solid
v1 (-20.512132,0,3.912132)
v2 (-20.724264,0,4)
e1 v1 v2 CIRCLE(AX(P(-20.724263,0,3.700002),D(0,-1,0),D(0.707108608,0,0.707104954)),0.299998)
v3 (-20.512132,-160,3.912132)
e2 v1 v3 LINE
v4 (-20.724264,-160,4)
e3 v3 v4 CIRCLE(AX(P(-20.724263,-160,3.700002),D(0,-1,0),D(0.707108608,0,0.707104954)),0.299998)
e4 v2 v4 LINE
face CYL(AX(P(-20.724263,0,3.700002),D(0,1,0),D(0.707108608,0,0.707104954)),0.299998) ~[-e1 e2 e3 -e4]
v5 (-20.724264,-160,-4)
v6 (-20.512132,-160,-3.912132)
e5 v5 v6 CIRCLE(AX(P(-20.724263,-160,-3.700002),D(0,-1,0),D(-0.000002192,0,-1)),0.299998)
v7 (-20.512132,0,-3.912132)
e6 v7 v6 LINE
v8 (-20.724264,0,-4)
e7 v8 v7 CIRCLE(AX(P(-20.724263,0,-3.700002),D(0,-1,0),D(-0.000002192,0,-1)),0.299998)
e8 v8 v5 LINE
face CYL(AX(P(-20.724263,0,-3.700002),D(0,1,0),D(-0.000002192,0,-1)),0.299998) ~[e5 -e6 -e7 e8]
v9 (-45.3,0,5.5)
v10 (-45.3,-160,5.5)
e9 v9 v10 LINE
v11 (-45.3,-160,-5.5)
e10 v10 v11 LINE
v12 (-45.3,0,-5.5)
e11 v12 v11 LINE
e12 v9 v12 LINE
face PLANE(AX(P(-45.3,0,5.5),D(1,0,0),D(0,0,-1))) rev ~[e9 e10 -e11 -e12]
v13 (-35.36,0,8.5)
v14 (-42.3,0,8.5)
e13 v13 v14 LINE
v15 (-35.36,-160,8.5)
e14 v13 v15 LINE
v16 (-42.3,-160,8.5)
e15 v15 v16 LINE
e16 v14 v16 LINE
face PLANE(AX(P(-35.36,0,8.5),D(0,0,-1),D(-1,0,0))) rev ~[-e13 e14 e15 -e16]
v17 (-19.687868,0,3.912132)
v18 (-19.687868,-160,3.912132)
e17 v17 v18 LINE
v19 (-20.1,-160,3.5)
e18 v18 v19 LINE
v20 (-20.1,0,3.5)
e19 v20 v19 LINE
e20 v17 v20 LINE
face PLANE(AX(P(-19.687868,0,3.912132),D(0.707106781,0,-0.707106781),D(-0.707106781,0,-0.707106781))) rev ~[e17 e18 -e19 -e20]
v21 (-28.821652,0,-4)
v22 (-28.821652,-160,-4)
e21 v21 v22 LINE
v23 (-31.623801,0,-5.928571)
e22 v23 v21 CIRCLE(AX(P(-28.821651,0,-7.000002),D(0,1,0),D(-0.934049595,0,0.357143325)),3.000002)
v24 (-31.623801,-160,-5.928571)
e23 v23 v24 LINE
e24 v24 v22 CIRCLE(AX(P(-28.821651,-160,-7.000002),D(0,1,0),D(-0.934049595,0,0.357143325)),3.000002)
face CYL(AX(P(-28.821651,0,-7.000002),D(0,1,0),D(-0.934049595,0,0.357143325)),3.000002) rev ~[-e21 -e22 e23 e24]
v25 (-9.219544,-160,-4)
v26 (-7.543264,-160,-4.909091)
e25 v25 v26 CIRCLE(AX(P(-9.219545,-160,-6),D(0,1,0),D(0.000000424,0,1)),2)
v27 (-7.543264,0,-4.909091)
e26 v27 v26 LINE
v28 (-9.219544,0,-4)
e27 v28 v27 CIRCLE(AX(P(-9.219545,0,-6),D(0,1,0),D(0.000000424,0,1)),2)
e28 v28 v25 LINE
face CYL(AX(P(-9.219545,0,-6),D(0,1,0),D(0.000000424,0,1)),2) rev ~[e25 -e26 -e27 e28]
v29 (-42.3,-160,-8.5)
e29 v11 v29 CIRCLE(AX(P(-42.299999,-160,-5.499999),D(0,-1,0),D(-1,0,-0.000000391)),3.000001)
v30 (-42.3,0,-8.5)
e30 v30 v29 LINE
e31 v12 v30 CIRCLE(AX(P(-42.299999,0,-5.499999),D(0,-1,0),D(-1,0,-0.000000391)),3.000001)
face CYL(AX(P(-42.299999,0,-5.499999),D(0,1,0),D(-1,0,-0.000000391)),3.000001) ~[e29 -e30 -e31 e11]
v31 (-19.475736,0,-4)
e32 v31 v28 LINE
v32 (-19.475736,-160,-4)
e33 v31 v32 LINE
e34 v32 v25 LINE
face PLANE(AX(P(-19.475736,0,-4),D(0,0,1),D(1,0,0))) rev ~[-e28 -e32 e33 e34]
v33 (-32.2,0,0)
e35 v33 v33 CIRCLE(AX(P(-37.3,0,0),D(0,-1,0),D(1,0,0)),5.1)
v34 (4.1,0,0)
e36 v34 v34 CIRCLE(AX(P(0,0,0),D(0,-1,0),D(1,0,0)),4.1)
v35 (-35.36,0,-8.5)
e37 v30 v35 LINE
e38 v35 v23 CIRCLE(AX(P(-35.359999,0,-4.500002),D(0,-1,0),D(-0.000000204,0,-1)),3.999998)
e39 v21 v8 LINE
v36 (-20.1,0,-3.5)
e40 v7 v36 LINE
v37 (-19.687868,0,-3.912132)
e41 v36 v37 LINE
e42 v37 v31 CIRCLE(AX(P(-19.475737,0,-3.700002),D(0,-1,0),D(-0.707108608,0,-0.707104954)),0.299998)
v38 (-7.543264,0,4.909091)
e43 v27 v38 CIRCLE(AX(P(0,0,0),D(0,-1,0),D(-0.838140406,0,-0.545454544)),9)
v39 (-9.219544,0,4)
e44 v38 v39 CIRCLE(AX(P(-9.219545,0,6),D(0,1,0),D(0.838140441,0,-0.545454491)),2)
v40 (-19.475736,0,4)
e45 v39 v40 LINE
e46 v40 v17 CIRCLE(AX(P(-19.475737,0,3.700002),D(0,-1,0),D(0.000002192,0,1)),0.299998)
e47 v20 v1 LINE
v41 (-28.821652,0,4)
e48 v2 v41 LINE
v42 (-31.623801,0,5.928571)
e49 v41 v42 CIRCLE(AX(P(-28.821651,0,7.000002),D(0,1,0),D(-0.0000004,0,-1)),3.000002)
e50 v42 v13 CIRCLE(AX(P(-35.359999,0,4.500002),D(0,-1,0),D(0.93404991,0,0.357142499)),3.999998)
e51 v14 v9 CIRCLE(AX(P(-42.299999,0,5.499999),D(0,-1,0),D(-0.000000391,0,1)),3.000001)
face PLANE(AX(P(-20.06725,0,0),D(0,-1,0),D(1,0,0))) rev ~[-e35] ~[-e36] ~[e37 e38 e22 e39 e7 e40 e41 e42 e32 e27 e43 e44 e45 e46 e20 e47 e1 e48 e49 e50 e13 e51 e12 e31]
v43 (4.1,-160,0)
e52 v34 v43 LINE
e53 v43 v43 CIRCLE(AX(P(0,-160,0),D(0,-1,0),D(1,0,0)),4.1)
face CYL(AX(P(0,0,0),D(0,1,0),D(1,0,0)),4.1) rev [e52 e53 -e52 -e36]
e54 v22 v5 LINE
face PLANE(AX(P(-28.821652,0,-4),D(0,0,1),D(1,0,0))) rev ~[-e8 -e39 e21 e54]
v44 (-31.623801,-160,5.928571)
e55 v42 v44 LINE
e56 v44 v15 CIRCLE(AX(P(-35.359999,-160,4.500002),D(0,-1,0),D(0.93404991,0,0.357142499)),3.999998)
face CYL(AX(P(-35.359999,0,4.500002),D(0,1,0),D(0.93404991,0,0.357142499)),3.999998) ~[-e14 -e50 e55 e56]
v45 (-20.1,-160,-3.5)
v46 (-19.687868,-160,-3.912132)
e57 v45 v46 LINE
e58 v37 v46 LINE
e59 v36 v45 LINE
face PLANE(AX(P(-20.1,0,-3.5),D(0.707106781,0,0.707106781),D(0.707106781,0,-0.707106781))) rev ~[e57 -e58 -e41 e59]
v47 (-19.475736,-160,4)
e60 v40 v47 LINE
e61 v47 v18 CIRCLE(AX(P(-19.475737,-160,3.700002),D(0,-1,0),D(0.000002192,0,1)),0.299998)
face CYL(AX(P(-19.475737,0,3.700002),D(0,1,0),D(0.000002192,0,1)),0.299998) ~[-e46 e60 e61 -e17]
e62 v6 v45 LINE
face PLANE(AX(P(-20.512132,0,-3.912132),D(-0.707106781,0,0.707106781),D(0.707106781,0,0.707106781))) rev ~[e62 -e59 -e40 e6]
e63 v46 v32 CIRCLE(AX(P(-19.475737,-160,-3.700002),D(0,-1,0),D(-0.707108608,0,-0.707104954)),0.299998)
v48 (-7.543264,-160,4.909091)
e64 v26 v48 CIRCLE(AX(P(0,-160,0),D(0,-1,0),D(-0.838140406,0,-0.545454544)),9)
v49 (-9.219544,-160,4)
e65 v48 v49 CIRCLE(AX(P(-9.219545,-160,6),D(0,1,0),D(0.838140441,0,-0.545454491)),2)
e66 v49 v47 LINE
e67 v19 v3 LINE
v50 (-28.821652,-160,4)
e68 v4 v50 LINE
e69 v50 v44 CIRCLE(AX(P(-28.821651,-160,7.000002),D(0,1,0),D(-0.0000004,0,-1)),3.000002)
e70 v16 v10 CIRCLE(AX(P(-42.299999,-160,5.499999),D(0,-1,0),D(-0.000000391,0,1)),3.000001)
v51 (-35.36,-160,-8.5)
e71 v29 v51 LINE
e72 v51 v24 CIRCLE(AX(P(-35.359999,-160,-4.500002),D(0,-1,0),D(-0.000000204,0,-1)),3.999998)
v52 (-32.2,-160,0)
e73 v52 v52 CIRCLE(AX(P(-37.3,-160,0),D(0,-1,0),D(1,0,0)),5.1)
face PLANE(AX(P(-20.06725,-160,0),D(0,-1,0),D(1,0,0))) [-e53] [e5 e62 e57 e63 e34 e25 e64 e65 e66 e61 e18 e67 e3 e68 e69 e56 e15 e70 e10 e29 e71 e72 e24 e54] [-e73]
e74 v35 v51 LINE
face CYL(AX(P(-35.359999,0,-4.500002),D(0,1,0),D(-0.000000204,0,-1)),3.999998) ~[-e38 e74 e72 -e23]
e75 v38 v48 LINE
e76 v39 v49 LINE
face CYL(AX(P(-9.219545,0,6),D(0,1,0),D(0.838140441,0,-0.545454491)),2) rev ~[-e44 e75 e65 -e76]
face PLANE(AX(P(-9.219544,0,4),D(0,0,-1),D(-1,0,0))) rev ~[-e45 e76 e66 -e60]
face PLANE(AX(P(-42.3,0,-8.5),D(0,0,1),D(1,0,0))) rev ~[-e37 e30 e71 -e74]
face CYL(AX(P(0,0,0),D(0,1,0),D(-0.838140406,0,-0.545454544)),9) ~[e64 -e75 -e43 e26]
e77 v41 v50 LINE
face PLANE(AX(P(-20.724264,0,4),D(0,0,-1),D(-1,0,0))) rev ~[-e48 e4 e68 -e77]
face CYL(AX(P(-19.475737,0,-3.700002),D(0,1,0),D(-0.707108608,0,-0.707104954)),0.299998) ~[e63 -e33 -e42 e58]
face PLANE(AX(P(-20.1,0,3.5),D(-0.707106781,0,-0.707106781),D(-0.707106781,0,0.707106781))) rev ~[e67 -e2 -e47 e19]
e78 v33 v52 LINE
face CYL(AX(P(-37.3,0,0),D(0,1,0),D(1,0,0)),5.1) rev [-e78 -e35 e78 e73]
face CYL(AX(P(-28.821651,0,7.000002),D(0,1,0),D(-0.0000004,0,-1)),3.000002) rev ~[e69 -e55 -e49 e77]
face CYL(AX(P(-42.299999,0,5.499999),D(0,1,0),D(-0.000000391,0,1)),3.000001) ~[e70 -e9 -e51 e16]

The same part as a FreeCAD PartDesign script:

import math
import FreeCAD as App
import Part
import Sketcher
from FreeCAD import Vector

doc = App.newDocument("Part")
body = doc.addObject("PartDesign::Body", "Body")

sketch1 = body.newObject("Sketcher::SketchObject", "Sketch")
sketch1.AttachmentSupport = (doc.getObject("XZ_Plane"), [""])
sketch1.MapMode = "FlatFace"
sketch1.addGeometry([
    Part.ArcOfCircle(Part.Circle(Vector(-9.22, -6, 0), Vector(0, 0, 1), 2), math.radians(33), math.radians(90)),
    Part.ArcOfCircle(Part.Circle(Vector(0, 0, 0), Vector(0, 0, 1), 9), math.radians(-147), math.radians(147)),
    Part.ArcOfCircle(Part.Circle(Vector(-9.22, 6, 0), Vector(0, 0, 1), 2), math.radians(-90), math.radians(-33)),
    Part.LineSegment(Vector(-9.22, 4, 0), Vector(-19.48, 4, 0)),
    Part.ArcOfCircle(Part.Circle(Vector(-19.48, 3.7, 0), Vector(0, 0, 1), 0.3), math.radians(90), math.radians(135)),
    Part.LineSegment(Vector(-19.69, 3.91, 0), Vector(-20.1, 3.5, 0)),
    Part.LineSegment(Vector(-20.1, 3.5, 0), Vector(-20.51, 3.91, 0)),
    Part.ArcOfCircle(Part.Circle(Vector(-20.72, 3.7, 0), Vector(0, 0, 1), 0.3), math.radians(45), math.radians(90)),
    Part.LineSegment(Vector(-20.72, 4, 0), Vector(-28.82, 4, 0)),
    Part.ArcOfCircle(Part.Circle(Vector(-28.82, 7, 0), Vector(0, 0, 1), 3), math.radians(-159), math.radians(-90)),
    Part.ArcOfCircle(Part.Circle(Vector(-35.36, 4.5, 0), Vector(0, 0, 1), 4), math.radians(21), math.radians(90)),
    Part.LineSegment(Vector(-35.36, 8.5, 0), Vector(-42.3, 8.5, 0)),
    Part.ArcOfCircle(Part.Circle(Vector(-42.3, 5.5, 0), Vector(0, 0, 1), 3), math.radians(90), math.radians(180)),
    Part.LineSegment(Vector(-45.3, 5.5, 0), Vector(-45.3, -5.5, 0)),
    Part.ArcOfCircle(Part.Circle(Vector(-42.3, -5.5, 0), Vector(0, 0, 1), 3), math.radians(-180), math.radians(-90)),
    Part.LineSegment(Vector(-42.3, -8.5, 0), Vector(-35.36, -8.5, 0)),
    Part.ArcOfCircle(Part.Circle(Vector(-35.36, -4.5, 0), Vector(0, 0, 1), 4), math.radians(-90), math.radians(-21)),
    Part.ArcOfCircle(Part.Circle(Vector(-28.82, -7, 0), Vector(0, 0, 1), 3), math.radians(90), math.radians(159)),
    Part.LineSegment(Vector(-28.82, -4, 0), Vector(-20.72, -4, 0)),
    Part.ArcOfCircle(Part.Circle(Vector(-20.72, -3.7, 0), Vector(0, 0, 1), 0.3), math.radians(-90), math.radians(-45)),
    Part.LineSegment(Vector(-20.51, -3.91, 0), Vector(-20.1, -3.5, 0)),
    Part.LineSegment(Vector(-20.1, -3.5, 0), Vector(-19.69, -3.91, 0)),
    Part.ArcOfCircle(Part.Circle(Vector(-19.48, -3.7, 0), Vector(0, 0, 1), 0.3), math.radians(-135), math.radians(-90)),
    Part.LineSegment(Vector(-19.48, -4, 0), Vector(-9.22, -4, 0)),
    Part.Circle(Vector(-37.3, 0, 0), Vector(0, 0, 1), 5.1),
    Part.Circle(Vector(0, 0, 0), Vector(0, 0, 1), 4.1),
], False)
sketch1.addConstraint([
    Sketcher.Constraint("Tangent", 0, 1, 1, 1),
    Sketcher.Constraint("Tangent", 1, 2, 2, 2),
    Sketcher.Constraint("Tangent", 2, 1, 3, 1),
    Sketcher.Constraint("Coincident", 3, 2, 4, 1),
    Sketcher.Constraint("Coincident", 4, 2, 5, 1),
    Sketcher.Constraint("Coincident", 5, 2, 6, 1),
    Sketcher.Constraint("Coincident", 6, 2, 7, 1),
    Sketcher.Constraint("Coincident", 7, 2, 8, 1),
    Sketcher.Constraint("Tangent", 8, 2, 9, 2),
    Sketcher.Constraint("Tangent", 9, 1, 10, 1),
    Sketcher.Constraint("Tangent", 10, 2, 11, 1),
    Sketcher.Constraint("Tangent", 11, 2, 12, 1),
    Sketcher.Constraint("Tangent", 12, 2, 13, 1),
    Sketcher.Constraint("Tangent", 13, 2, 14, 1),
    Sketcher.Constraint("Tangent", 14, 2, 15, 1),
    Sketcher.Constraint("Tangent", 15, 2, 16, 1),
    Sketcher.Constraint("Tangent", 16, 2, 17, 2),
    Sketcher.Constraint("Tangent", 17, 1, 18, 1),
    Sketcher.Constraint("Coincident", 18, 2, 19, 1),
    Sketcher.Constraint("Coincident", 19, 2, 20, 1),
    Sketcher.Constraint("Coincident", 20, 2, 21, 1),
    Sketcher.Constraint("Coincident", 21, 2, 22, 1),
    Sketcher.Constraint("Coincident", 22, 2, 23, 1),
    Sketcher.Constraint("Tangent", 23, 2, 0, 2),
    Sketcher.Constraint("Horizontal", 3),
    Sketcher.Constraint("Horizontal", 8),
    Sketcher.Constraint("Horizontal", 11),
    Sketcher.Constraint("Vertical", 13),
    Sketcher.Constraint("Horizontal", 15),
    Sketcher.Constraint("Horizontal", 18),
    Sketcher.Constraint("Horizontal", 23),
    Sketcher.Constraint("Coincident", 1, 3, -1, 1),
    Sketcher.Constraint("Coincident", 25, 3, -1, 1),
    Sketcher.Constraint("Equal", 0, 2),
    Sketcher.Constraint("Equal", 4, 7),
    Sketcher.Constraint("Equal", 9, 12),
    Sketcher.Constraint("Equal", 12, 14),
    Sketcher.Constraint("Equal", 10, 16),
    Sketcher.Constraint("Equal", 14, 17),
    Sketcher.Constraint("Equal", 7, 19),
    Sketcher.Constraint("Equal", 19, 22),
    Sketcher.Constraint("Symmetric", 10, 3, 16, 3, -1),
    Sketcher.Constraint("Symmetric", 7, 3, 19, 3, -1),
    Sketcher.Constraint("Symmetric", 4, 3, 22, 3, -1),
    Sketcher.Constraint("Symmetric", 5, 2, 20, 2, -1),
    Sketcher.Constraint("PointOnObject", 24, 3, -1),
    Sketcher.Constraint("Perpendicular", 5, 6),
    Sketcher.Constraint("Perpendicular", 6, 20),
    Sketcher.Constraint("Horizontal", 4, 3, 7, 3),
    Sketcher.Constraint("Horizontal", 4, 2, 6, 2),
    Sketcher.Constraint("Horizontal", 19, 2, 21, 2),
    Sketcher.Constraint("Vertical", 22, 3, 3, 2),
    Sketcher.Constraint("Vertical", 19, 3, 7, 2),
    Sketcher.Constraint("Vertical", 7, 2, 18, 2),
    Sketcher.Constraint("Vertical", 6, 2, 19, 2),
    Sketcher.Constraint("Vertical", 3, 2, 22, 2),
    Sketcher.Constraint("Radius", 0, 2.0),
    Sketcher.Constraint("Radius", 1, 9.0),
    Sketcher.Constraint("Radius", 9, 3.000002),
    Sketcher.Constraint("Radius", 10, 3.999998),
    Sketcher.Constraint("Diameter", 24, 10.2),
    Sketcher.Constraint("Diameter", 25, 8.2),
    Sketcher.Constraint("Radius", 4, 0.299998),
    Sketcher.Constraint("DistanceY", 13, 2, 13, 1, 11.0),
    Sketcher.Constraint("DistanceY", 0, 3, -1, 1, 6.0),
    Sketcher.Constraint("DistanceX", 12, 3, 24, 3, 4.999999),
    Sketcher.Constraint("DistanceY", 20, 2, 5, 2, 7.0),
    Sketcher.Constraint("DistanceX", 11, 2, 11, 1, 6.94),
    Sketcher.Constraint("DistanceX", 12, 3, -1, 1, 42.299999),
    Sketcher.Constraint("DistanceX", 5, 2, -1, 1, 20.1),
    Sketcher.Constraint("DistanceX", 4, 2, -1, 1, 19.687868),
])
pad1 = body.newObject("PartDesign::Pad", "Pad")
pad1.Profile = sketch1
pad1.Length = 160

doc.recompute()
